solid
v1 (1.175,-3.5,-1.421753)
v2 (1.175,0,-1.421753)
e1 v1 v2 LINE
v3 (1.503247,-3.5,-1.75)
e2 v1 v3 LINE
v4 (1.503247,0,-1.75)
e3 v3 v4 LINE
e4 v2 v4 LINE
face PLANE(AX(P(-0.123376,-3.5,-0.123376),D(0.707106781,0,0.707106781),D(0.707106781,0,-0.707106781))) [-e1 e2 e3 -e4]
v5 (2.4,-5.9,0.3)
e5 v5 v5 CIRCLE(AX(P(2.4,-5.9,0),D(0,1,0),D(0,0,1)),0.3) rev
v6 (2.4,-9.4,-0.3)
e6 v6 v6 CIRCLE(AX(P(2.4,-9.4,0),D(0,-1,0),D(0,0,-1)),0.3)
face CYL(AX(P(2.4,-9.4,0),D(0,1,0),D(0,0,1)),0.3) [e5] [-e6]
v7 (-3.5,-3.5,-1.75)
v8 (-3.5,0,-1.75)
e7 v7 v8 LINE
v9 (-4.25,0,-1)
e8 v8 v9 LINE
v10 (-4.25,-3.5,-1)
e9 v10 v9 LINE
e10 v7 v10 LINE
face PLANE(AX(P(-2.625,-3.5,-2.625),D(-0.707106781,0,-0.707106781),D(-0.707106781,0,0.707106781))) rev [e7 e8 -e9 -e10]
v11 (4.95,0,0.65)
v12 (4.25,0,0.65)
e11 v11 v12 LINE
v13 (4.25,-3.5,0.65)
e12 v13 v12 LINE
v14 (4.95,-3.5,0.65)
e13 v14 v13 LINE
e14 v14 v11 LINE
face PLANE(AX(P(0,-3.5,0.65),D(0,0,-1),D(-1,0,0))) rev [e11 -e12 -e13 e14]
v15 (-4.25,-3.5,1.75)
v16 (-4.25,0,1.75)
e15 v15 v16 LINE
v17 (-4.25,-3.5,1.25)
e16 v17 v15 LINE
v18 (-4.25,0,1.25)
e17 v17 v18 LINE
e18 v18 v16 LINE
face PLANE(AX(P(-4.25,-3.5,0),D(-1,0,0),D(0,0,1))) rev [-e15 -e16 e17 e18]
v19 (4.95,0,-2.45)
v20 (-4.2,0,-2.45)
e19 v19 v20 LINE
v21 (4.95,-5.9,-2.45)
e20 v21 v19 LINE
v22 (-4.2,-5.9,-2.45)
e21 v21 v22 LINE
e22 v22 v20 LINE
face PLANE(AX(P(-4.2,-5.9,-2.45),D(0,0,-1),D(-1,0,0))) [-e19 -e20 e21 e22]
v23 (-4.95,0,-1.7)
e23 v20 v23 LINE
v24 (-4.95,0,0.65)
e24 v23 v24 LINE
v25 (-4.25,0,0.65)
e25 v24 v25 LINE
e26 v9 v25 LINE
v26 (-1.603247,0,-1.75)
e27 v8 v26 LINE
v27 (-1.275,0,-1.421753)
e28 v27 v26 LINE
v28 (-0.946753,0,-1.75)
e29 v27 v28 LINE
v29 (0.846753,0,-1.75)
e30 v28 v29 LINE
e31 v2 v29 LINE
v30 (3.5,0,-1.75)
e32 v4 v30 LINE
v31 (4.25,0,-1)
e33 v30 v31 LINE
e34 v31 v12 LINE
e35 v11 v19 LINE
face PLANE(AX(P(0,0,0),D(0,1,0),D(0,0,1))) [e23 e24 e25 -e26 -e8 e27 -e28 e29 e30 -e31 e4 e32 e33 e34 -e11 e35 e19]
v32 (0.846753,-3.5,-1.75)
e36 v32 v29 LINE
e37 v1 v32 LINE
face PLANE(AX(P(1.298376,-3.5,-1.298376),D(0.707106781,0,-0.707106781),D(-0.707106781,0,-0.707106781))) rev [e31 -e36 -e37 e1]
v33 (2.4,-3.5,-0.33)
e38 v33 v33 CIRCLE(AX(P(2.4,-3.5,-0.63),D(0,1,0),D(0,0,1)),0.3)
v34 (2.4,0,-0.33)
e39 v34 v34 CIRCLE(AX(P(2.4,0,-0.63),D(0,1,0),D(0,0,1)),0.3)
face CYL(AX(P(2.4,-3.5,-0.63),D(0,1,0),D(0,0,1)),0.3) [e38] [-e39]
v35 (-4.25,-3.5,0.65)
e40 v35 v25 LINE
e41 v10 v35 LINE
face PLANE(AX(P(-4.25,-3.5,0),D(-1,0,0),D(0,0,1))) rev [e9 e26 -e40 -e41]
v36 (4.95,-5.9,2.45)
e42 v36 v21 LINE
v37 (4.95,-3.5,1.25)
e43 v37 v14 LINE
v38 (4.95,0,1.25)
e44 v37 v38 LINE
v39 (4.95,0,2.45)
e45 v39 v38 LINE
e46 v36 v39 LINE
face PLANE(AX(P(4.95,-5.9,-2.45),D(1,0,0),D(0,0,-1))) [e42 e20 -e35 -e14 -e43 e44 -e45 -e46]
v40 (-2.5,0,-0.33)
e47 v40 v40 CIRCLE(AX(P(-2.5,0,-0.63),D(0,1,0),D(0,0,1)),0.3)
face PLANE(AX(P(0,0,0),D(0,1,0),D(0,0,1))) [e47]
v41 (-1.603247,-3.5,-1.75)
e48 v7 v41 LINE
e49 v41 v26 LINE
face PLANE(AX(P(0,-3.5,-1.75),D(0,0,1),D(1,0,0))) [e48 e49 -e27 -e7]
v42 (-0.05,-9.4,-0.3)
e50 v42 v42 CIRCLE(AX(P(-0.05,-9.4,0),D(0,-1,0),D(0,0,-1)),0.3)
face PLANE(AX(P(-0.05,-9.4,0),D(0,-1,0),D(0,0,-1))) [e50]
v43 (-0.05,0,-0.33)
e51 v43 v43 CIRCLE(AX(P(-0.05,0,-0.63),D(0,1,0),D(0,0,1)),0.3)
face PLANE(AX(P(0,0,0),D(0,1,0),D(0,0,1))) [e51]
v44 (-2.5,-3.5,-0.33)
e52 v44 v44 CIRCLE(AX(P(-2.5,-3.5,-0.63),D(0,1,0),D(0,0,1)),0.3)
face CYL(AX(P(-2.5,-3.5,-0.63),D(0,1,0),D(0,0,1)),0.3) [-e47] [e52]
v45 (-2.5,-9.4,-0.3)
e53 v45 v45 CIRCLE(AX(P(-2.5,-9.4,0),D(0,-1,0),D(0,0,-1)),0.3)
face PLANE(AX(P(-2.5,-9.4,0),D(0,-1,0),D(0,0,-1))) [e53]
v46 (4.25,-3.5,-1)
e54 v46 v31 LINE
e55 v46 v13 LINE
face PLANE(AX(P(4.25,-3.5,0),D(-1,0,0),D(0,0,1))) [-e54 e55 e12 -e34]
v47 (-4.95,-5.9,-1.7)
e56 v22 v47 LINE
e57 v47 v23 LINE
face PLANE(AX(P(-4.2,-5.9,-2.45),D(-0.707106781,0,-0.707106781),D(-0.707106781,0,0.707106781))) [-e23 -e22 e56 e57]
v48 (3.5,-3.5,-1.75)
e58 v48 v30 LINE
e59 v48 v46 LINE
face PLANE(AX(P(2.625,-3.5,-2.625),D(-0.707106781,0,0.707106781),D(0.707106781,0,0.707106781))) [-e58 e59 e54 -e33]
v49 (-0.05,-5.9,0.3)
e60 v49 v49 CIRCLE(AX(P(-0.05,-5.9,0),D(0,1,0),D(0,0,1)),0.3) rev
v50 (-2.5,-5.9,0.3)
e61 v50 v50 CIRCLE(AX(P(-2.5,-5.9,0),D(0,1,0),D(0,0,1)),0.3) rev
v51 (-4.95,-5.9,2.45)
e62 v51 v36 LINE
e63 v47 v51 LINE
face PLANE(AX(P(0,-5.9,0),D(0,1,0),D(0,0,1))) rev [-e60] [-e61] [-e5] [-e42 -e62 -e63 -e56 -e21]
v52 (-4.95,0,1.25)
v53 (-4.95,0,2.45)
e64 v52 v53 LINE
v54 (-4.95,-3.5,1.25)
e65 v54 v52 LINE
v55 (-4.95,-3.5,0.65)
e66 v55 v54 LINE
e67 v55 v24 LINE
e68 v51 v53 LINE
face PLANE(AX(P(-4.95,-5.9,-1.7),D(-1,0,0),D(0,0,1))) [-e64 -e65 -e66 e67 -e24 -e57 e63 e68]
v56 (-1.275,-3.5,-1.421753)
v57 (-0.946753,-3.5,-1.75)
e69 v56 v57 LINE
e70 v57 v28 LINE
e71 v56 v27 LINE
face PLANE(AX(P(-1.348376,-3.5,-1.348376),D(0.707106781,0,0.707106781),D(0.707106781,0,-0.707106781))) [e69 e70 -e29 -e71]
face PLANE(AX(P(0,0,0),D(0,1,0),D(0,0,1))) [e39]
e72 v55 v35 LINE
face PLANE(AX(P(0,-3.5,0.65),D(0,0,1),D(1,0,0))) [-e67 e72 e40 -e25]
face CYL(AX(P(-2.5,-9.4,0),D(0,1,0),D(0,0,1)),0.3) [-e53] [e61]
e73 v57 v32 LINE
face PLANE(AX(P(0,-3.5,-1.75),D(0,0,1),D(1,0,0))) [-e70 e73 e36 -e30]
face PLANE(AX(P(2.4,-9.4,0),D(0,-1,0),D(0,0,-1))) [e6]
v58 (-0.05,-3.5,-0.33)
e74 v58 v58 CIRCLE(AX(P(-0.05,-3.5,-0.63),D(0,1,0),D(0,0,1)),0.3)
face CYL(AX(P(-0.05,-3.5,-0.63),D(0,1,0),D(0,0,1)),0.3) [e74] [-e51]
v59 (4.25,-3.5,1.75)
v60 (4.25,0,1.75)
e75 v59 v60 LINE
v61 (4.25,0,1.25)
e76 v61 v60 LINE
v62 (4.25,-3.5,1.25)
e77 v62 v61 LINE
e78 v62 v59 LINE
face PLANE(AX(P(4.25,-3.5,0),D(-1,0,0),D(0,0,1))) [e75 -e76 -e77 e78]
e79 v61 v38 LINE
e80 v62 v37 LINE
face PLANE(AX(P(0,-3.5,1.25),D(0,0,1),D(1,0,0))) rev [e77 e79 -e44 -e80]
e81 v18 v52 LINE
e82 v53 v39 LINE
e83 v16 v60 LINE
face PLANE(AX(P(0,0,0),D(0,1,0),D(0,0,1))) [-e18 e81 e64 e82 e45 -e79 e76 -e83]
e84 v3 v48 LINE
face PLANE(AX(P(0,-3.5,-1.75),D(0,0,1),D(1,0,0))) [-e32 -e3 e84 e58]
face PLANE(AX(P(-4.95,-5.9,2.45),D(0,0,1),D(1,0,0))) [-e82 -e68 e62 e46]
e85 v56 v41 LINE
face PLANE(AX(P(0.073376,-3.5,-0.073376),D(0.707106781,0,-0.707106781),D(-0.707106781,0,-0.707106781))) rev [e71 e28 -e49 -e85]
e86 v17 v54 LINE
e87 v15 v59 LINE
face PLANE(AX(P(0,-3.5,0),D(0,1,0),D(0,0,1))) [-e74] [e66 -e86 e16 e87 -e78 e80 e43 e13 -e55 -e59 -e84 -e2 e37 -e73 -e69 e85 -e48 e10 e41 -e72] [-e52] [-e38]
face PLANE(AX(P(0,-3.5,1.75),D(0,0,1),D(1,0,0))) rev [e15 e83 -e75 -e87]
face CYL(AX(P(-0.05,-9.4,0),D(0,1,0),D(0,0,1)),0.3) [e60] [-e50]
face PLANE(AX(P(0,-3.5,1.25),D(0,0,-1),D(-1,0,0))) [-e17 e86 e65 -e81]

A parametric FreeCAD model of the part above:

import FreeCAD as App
import Part
import Sketcher
Q = App.Units.Quantity

doc = App.newDocument("Part")
body = doc.addObject("PartDesign::Body", "Body")

# Sketch on XZ plane
sketch1 = body.newObject("Sketcher::SketchObject", "Sketch")
sketch1.AttachmentSupport = (doc.getObject("XZ_Plane"), [""])
sketch1.MapMode = "FlatFace"
sketch1.addGeometry([
    Part.LineSegment(App.Vector(-4.2, -2.5, 0), App.Vector(-5, -1.7, 0)),  # 0
    Part.LineSegment(App.Vector(-5, -1.7, 0), App.Vector(-5, 2.5, 0)),  # 1
    Part.LineSegment(App.Vector(-5, 2.5, 0), App.Vector(5, 2.5, 0)),  # 2
    Part.LineSegment(App.Vector(5, 2.5, 0), App.Vector(5, -2.5, 0)),  # 3
    Part.LineSegment(App.Vector(5, -2.5, 0), App.Vector(-4.2, -2.5, 0)),  # 4
], False)
sketch1.addConstraint([
    Sketcher.Constraint("Coincident", 0, 2, 1, 1),
    Sketcher.Constraint("Coincident", 1, 2, 2, 1),
    Sketcher.Constraint("Coincident", 2, 2, 3, 1),
    Sketcher.Constraint("Coincident", 3, 2, 4, 1),
    Sketcher.Constraint("Coincident", 4, 2, 0, 1),
    Sketcher.Constraint("Vertical", 1),
    Sketcher.Constraint("Horizontal", 2),
    Sketcher.Constraint("Vertical", 3),
    Sketcher.Constraint("Horizontal", 4),
    Sketcher.Constraint("Symmetric", 1, 2, 3, 2, -1, 1),
    Sketcher.Constraint("Angle", 0, Q("135 deg")),
    Sketcher.Constraint("DistanceX", 2, 1, 2, 2, 9.9),
    Sketcher.Constraint("DistanceY", 3, 2, 3, 1, 4.9),
    Sketcher.Constraint("DistanceX", 4, 2, 4, 1, 9.15),
])
pad1 = body.newObject("PartDesign::Pad", "Pad")
pad1.Profile = sketch1
pad1.Length = 5.9

# Sketch on XZ plane
sketch2 = body.newObject("Sketcher::SketchObject", "Sketch001")
sketch2.AttachmentSupport = (doc.getObject("XZ_Plane"), [""])
sketch2.MapMode = "FlatFace"
sketch2.AttachmentOffset = App.Placement(App.Vector(0, 0, 5.9), App.Rotation())
sketch2.addGeometry([
    Part.Circle(App.Vector(-2.5, 0, 0), App.Vector(0, 0, 1), 0.3),
    Part.Circle(App.Vector(-0.05, 0, 0), App.Vector(0, 0, 1), 0.3),
    Part.Circle(App.Vector(2.4, 0, 0), App.Vector(0, 0, 1), 0.3),
], False)
sketch2.addConstraint([
    Sketcher.Constraint("Equal", 0, 1),
    Sketcher.Constraint("Equal", 1, 2),
    Sketcher.Constraint("PointOnObject", 0, 3, -1),
    Sketcher.Constraint("PointOnObject", 1, 3, -1),
    Sketcher.Constraint("PointOnObject", 2, 3, -1),
    Sketcher.Constraint("Diameter", 0, 0.6),
    Sketcher.Constraint("DistanceX", 0, 3, -1, 1, 2.5),
    Sketcher.Constraint("DistanceX", -1, 1, 2, 3, 2.4),
    Sketcher.Constraint("DistanceX", 1, 3, -1, 1, 0.05),
])
pad2 = body.newObject("PartDesign::Pad", "Pad001")
pad2.Profile = sketch2
pad2.Length = 3.5

# Sketch on XZ plane
sketch3 = body.newObject("Sketcher::SketchObject", "Sketch002")
sketch3.AttachmentSupport = (doc.getObject("XZ_Plane"), [""])
sketch3.MapMode = "FlatFace"
sketch3.addGeometry([
    Part.LineSegment(App.Vector(-1.6, -1.75, 0), App.Vector(-3.5, -1.75, 0)),  # 0
    Part.LineSegment(App.Vector(-3.5, -1.75, 0), App.Vector(-4.25, -1, 0)),  # 1
    Part.LineSegment(App.Vector(-4.25, -1, 0), App.Vector(-4.25, 0.65, 0)),  # 2
    Part.LineSegment(App.Vector(-4.25, 0.65, 0), App.Vector(-4.95, 0.65, 0)),  # 3
    Part.LineSegment(App.Vector(-4.95, 0.65, 0), App.Vector(-4.95, 1.25, 0)),  # 4
    Part.LineSegment(App.Vector(-4.95, 1.25, 0), App.Vector(-4.25, 1.25, 0)),  # 5
    Part.LineSegment(App.Vector(-4.25, 1.25, 0), App.Vector(-4.25, 1.75, 0)),  # 6
    Part.LineSegment(App.Vector(-4.25, 1.75, 0), App.Vector(4.25, 1.75, 0)),  # 7
    Part.LineSegment(App.Vector(4.25, 1.75, 0), App.Vector(4.25, 1.25, 0)),  # 8
    Part.LineSegment(App.Vector(4.25, 1.25, 0), App.Vector(4.95, 1.25, 0)),  # 9
    Part.LineSegment(App.Vector(4.95, 1.25, 0), App.Vector(4.95, 0.65, 0)),  # 10
    Part.LineSegment(App.Vector(4.95, 0.65, 0), App.Vector(4.25, 0.65, 0)),  # 11
    Part.LineSegment(App.Vector(4.25, 0.65, 0), App.Vector(4.25, -1, 0)),  # 12
    Part.LineSegment(App.Vector(4.25, -1, 0), App.Vector(3.5, -1.75, 0)),  # 13
    Part.LineSegment(App.Vector(3.5, -1.75, 0), App.Vector(1.5, -1.75, 0)),  # 14
    Part.LineSegment(App.Vector(1.5, -1.75, 0), App.Vector(1.18, -1.42, 0)),  # 15
    Part.LineSegment(App.Vector(1.18, -1.42, 0), App.Vector(0.85, -1.75, 0)),  # 16
    Part.LineSegment(App.Vector(0.85, -1.75, 0), App.Vector(-0.95, -1.75, 0)),  # 17
    Part.LineSegment(App.Vector(-0.95, -1.75, 0), App.Vector(-1.27, -1.42, 0)),  # 18
    Part.LineSegment(App.Vector(-1.27, -1.42, 0), App.Vector(-1.6, -1.75, 0)),  # 19
    Part.Circle(App.Vector(-2.5, -0.63, 0), App.Vector(0, 0, 1), 0.3),  # 20
    Part.Circle(App.Vector(-0.05, -0.63, 0), App.Vector(0, 0, 1), 0.3),  # 21
    Part.Circle(App.Vector(2.4, -0.63, 0), App.Vector(0, 0, 1), 0.3),  # 22
], False)
sketch3.addConstraint([
    Sketcher.Constraint("Coincident", 0, 2, 1, 1),
    Sketcher.Constraint("Coincident", 1, 2, 2, 1),
    Sketcher.Constraint("Coincident", 2, 2, 3, 1),
    Sketcher.Constraint("Coincident", 3, 2, 4, 1),
    Sketcher.Constraint("Coincident", 4, 2, 5, 1),
    Sketcher.Constraint("Coincident", 5, 2, 6, 1),
    Sketcher.Constraint("Coincident", 6, 2, 7, 1),
    Sketcher.Constraint("Coincident", 7, 2, 8, 1),
    Sketcher.Constraint("Coincident", 8, 2, 9, 1),
    Sketcher.Constraint("Coincident", 9, 2, 10, 1),
    Sketcher.Constraint("Coincident", 10, 2, 11, 1),
    Sketcher.Constraint("Coincident", 11, 2, 12, 1),
    Sketcher.Constraint("Coincident", 12, 2, 13, 1),
    Sketcher.Constraint("Coincident", 13, 2, 14, 1),
    Sketcher.Constraint("Coincident", 14, 2, 15, 1),
    Sketcher.Constraint("Coincident", 15, 2, 16, 1),
    Sketcher.Constraint("Coincident", 16, 2, 17, 1),
    Sketcher.Constraint("Coincident", 17, 2, 18, 1),
    Sketcher.Constraint("Coincident", 18, 2, 19, 1),
    Sketcher.Constraint("Coincident", 19, 2, 0, 1),
    Sketcher.Constraint("Horizontal", 0),
    Sketcher.Constraint("Vertical", 2),
    Sketcher.Constraint("Horizontal", 3),
    Sketcher.Constraint("Vertical", 4),
    Sketcher.Constraint("Horizontal", 5),
    Sketcher.Constraint("Vertical", 6),
    Sketcher.Constraint("Horizontal", 7),
    Sketcher.Constraint("Vertical", 8),
    Sketcher.Constraint("Horizontal", 9),
    Sketcher.Constraint("Vertical", 10),
    Sketcher.Constraint("Horizontal", 11),
    Sketcher.Constraint("Vertical", 12),
    Sketcher.Constraint("Horizontal", 14),
    Sketcher.Constraint("Horizontal", 17),
    Sketcher.Constraint("Equal", 20, 21),
    Sketcher.Constraint("Equal", 21, 22),
    Sketcher.Constraint("Symmetric", 5, 2, 8, 2, -2),
    Sketcher.Constraint("Symmetric", 3, 2, 10, 2, -2),
    Sketcher.Constraint("Symmetric", 1, 2, 12, 2, -2),
    Sketcher.Constraint("Symmetric", 0, 2, 13, 2, -2),
    Sketcher.Constraint("Perpendicular", 1, 13),
    Sketcher.Constraint("Perpendicular", 13, 15),
    Sketcher.Constraint("Perpendicular", 15, 16),
    Sketcher.Constraint("Perpendicular", 16, 18),
    Sketcher.Constraint("Perpendicular", 18, 19),
    Sketcher.Constraint("Horizontal", 20, 3, 21, 3),
    Sketcher.Constraint("Horizontal", 21, 3, 22, 3),
    Sketcher.Constraint("Horizontal", 14, 2, 16, 2),
    Sketcher.Constraint("Horizontal", 15, 2, 18, 2),
    Sketcher.Constraint("Vertical", 2, 2, 5, 2),
    Sketcher.Constraint("Diameter", 20, 0.6),
    Sketcher.Constraint("DistanceX", 3, 2, 3, 1, 0.7),
    Sketcher.Constraint("DistanceX", 7, 1, 7, 2, 8.5),
    Sketcher.Constraint("DistanceY", 4, 1, 4, 2, 0.6),
    Sketcher.Constraint("DistanceY", 6, 1, 6, 2, 0.5),
    Sketcher.Constraint("DistanceY", 1, 2, -1, 1, 1.0),
    Sketcher.Constraint("DistanceX", 0, 2, 20, 3, 1.0),
    Sketcher.Constraint("DistanceY", 0, 2, 4, 2, 3.0),
    Sketcher.Constraint("DistanceX", 21, 3, 9, 2, 5.0),
    Sketcher.Constraint("DistanceY", 2, 1, 2, 2, 1.65),
    Sketcher.Constraint("DistanceX", -1, 1, 22, 3, 2.4),
    Sketcher.Constraint("DistanceY", 20, 3, -1, 1, 0.63),
    Sketcher.Constraint("DistanceX", 17, 2, 14, 2, 2.45),
    Sketcher.Constraint("DistanceX", -1, 1, 15, 2, 1.175),
    Sketcher.Constraint("DistanceX", 0, 2, 0, 1, 1.896753),
])
pocket1 = body.newObject("PartDesign::Pocket", "Pocket")
pocket1.Profile = sketch3
pocket1.Length = 3.5
pocket1.Reversed = True

doc.recompute()
